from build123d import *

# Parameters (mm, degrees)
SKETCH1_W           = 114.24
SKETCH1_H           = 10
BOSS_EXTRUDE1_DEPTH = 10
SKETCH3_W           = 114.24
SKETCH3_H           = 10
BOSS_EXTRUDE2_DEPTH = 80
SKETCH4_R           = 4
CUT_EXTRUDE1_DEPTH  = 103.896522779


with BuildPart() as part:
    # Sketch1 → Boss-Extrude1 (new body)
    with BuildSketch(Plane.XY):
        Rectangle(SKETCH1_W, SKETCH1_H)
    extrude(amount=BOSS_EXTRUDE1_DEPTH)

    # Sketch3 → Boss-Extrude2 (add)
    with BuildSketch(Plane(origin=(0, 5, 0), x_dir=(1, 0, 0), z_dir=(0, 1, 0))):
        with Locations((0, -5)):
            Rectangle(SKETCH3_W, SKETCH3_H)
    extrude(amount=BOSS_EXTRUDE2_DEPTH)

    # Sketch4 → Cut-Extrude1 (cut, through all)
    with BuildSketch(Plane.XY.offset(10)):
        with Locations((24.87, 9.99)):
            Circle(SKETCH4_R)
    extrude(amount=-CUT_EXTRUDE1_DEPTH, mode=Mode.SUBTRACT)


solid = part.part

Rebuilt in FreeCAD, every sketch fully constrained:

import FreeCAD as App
import Part
import Sketcher


def add_polygon(sketch, points):
    """Adds a closed chain of lines whose ends are joined by coincident constraints."""
    first, n = sketch.GeometryCount, len(points)
    for a, b in zip(points, points[1:] + points[:1]):
        sketch.addGeometry(Part.LineSegment(App.Vector(*a, 0), App.Vector(*b, 0)), False)
    for i in range(n):
        sketch.addConstraint(Sketcher.Constraint("Coincident", first + i, 2, first + (i + 1) % n, 1))

doc = App.newDocument("Part")
body = doc.addObject("PartDesign::Body", "Body")

# Sketch on XY plane
sketch1 = doc.addObject("Sketcher::SketchObject", "Sketch")
body.addObject(sketch1)
sketch1.AttachmentSupport = (doc.XY_Plane, [""])
sketch1.MapMode = "FlatFace"
add_polygon(sketch1, [(-57.12, 5), (-57.12, -5), (57.12, -5), (57.12, 5)])  # lines 0-3
sketch1.addConstraint([
    Sketcher.Constraint("Vertical", 0),
    Sketcher.Constraint("Horizontal", 1),
    Sketcher.Constraint("Vertical", 2),
    Sketcher.Constraint("Horizontal", 3),
    Sketcher.Constraint("Symmetric", 0, 2, 2, 2, -1, 1),
    Sketcher.Constraint("DistanceY", 0, 2, 0, 1, 10.0),
    Sketcher.Constraint("DistanceX", 1, 1, 1, 2, 114.24),
])
pad1 = doc.addObject("PartDesign::Pad", "Pad")
body.addObject(pad1)
pad1.Profile = sketch1
pad1.Length = 10

# Sketch on XZ plane
sketch2 = doc.addObject("Sketcher::SketchObject", "Sketch001")
body.addObject(sketch2)
sketch2.AttachmentSupport = (doc.XZ_Plane, [""])
sketch2.MapMode = "FlatFace"
sketch2.AttachmentOffset = App.Placement(App.Vector(0, 0, -5), App.Rotation())
add_polygon(sketch2, [(-57.12, 0), (-57.12, 10), (57.12, 10), (57.12, 0)])  # lines 0-3
sketch2.addConstraint([
    Sketcher.Constraint("Vertical", 0),
    Sketcher.Constraint("Horizontal", 1),
    Sketcher.Constraint("Vertical", 2),
    Sketcher.Constraint("Horizontal", 3),
    Sketcher.Constraint("Symmetric", 2, 2, 3, 2, -1, 1),
    Sketcher.Constraint("DistanceY", 0, 1, 0, 2, 10.0),
    Sketcher.Constraint("DistanceX", 1, 1, 1, 2, 114.24),
])
pad2 = doc.addObject("PartDesign::Pad", "Pad001")
body.addObject(pad2)
pad2.Profile = sketch2
pad2.Length = 80
pad2.Reversed = True

# Sketch on XY plane
sketch3 = doc.addObject("Sketcher::SketchObject", "Sketch002")
body.addObject(sketch3)
sketch3.AttachmentSupport = (doc.XY_Plane, [""])
sketch3.MapMode = "FlatFace"
sketch3.AttachmentOffset = App.Placement(App.Vector(0, 0, 10), App.Rotation())
sketch3.addGeometry(Part.Circle(App.Vector(24.87, 9.99, 0), App.Vector(0, 0, 1), 4), False)
sketch3.addConstraint([
    Sketcher.Constraint("Diameter", 0, 8.0),
    Sketcher.Constraint("DistanceX", -1, 1, 0, 3, 24.87),
    Sketcher.Constraint("DistanceY", -1, 1, 0, 3, 9.99),
])
pocket1 = doc.addObject("PartDesign::Pocket", "Pocket")
body.addObject(pocket1)
pocket1.Profile = sketch3
pocket1.Type = "ThroughAll"

doc.recompute()
